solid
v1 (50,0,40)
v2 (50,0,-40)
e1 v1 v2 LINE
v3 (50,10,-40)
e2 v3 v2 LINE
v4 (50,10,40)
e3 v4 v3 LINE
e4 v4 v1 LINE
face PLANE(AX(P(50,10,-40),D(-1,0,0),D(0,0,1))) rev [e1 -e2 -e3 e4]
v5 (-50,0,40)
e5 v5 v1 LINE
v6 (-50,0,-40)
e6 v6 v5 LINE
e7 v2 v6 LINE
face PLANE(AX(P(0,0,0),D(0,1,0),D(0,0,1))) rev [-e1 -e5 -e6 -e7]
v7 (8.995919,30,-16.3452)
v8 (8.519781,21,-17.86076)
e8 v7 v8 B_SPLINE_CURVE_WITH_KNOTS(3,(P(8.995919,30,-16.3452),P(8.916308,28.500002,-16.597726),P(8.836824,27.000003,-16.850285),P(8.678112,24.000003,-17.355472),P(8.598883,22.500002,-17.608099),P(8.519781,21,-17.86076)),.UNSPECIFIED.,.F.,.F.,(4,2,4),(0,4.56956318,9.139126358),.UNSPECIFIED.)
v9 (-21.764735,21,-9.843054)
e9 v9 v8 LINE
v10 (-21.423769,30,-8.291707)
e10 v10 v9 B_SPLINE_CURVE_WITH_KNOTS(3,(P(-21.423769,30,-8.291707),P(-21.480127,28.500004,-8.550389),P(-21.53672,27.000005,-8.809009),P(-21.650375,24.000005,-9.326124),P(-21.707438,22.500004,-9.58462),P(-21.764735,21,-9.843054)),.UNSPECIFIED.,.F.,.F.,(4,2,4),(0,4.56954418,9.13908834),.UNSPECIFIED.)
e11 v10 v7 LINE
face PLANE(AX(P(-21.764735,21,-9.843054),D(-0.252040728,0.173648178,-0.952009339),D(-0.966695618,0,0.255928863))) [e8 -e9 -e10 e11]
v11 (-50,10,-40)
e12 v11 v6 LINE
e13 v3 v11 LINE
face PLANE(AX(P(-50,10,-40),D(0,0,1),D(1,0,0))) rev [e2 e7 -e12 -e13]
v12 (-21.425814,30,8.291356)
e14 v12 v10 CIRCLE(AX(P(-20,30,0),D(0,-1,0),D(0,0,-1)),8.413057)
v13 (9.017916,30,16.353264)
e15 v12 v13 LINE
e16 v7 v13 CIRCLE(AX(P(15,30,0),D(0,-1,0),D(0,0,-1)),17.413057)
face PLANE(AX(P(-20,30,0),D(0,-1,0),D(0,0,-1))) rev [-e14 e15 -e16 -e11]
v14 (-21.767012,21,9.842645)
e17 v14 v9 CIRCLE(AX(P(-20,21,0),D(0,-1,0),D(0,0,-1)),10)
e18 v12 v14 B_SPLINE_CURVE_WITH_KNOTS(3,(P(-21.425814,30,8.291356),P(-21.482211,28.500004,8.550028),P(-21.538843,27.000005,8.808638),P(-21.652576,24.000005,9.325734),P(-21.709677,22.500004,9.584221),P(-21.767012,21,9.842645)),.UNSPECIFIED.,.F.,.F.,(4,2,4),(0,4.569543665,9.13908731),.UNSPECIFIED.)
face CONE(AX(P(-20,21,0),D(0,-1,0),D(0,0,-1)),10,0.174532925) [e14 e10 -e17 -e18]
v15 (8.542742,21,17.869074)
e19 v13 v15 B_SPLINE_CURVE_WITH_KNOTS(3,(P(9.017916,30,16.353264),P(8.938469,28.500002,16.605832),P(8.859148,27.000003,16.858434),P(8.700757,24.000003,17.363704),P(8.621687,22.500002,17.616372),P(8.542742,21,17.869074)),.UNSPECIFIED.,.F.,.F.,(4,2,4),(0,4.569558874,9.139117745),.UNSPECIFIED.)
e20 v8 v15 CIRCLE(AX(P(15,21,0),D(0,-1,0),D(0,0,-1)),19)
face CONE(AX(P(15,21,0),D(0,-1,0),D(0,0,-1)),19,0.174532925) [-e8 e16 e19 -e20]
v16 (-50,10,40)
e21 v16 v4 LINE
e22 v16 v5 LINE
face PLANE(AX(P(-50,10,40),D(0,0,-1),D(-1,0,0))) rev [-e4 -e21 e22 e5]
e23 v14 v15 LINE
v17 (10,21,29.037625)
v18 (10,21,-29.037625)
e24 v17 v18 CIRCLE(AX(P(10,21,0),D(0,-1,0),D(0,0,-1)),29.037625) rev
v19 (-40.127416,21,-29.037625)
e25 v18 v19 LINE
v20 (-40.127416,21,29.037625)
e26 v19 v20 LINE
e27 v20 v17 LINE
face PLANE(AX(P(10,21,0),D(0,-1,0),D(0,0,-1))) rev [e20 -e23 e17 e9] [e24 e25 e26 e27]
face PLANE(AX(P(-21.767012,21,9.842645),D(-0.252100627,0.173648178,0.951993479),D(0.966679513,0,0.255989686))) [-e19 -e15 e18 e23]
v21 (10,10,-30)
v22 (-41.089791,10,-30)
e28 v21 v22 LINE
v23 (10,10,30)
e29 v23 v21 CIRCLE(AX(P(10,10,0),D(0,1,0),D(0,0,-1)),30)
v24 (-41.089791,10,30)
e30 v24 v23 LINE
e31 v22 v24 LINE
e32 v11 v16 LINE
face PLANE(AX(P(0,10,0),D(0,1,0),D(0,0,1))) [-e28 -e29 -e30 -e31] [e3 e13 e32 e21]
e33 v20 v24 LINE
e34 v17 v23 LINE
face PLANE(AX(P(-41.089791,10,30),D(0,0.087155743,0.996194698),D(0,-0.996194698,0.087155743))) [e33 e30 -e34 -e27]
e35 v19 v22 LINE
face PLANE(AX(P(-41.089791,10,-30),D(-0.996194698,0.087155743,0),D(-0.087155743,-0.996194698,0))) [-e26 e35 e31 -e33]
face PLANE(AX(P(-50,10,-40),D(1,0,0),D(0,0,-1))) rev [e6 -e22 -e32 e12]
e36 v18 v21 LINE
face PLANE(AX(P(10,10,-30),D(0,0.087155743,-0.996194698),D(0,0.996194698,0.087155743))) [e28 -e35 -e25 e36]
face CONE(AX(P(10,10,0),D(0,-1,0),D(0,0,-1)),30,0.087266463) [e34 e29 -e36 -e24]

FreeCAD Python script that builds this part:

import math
import FreeCAD as App
import Part
import Sketcher
from FreeCAD import Vector
Q = App.Units.Quantity

doc = App.newDocument("Part")
body = doc.addObject("PartDesign::Body", "Body")

sketch1 = body.newObject("Sketcher::SketchObject", "Sketch")
sketch1.AttachmentSupport = (doc.getObject("XZ_Plane"), [""])
sketch1.MapMode = "FlatFace"
sketch1.addGeometry(Part.LineSegment(Vector(-50, -40, 0), Vector(-50, 40, 0)), False)
sketch1.addGeometry(Part.LineSegment(Vector(-50, 40, 0), Vector(50, 40, 0)), False)
sketch1.addGeometry(Part.LineSegment(Vector(50, 40, 0), Vector(50, -40, 0)), False)
sketch1.addGeometry(Part.LineSegment(Vector(50, -40, 0), Vector(-50, -40, 0)), False)
sketch1.addConstraint(Sketcher.Constraint("Coincident", 0, 2, 1, 1))
sketch1.addConstraint(Sketcher.Constraint("Coincident", 1, 2, 2, 1))
sketch1.addConstraint(Sketcher.Constraint("Coincident", 2, 2, 3, 1))
sketch1.addConstraint(Sketcher.Constraint("Coincident", 3, 2, 0, 1))
sketch1.addConstraint(Sketcher.Constraint("Vertical", 0))
sketch1.addConstraint(Sketcher.Constraint("Horizontal", 1))
sketch1.addConstraint(Sketcher.Constraint("Vertical", 2))
sketch1.addConstraint(Sketcher.Constraint("Horizontal", 3))
sketch1.addConstraint(Sketcher.Constraint("Symmetric", 0, 2, 2, 2, -1, 1))
sketch1.addConstraint(Sketcher.Constraint("DistanceX", 1, 1, 1, 2, Q("100 mm")))
sketch1.addConstraint(Sketcher.Constraint("DistanceY", 0, 1, 0, 2, Q("80 mm")))
pad1 = body.newObject("PartDesign::Pad", "Pad")
pad1.Profile = sketch1
pad1.Length = 10
pad1.Reversed = True

sketch2 = body.newObject("Sketcher::SketchObject", "Sketch001")
sketch2.AttachmentSupport = (doc.getObject("XZ_Plane"), [""])
sketch2.MapMode = "FlatFace"
sketch2.AttachmentOffset = App.Placement(Vector(0, 0, -10), App.Rotation())
sketch2.addGeometry(Part.LineSegment(Vector(10, -30, 0), Vector(-41, -30, 0)), False)
sketch2.addGeometry(Part.LineSegment(Vector(-41, -30, 0), Vector(-41, 30, 0)), False)
sketch2.addGeometry(Part.LineSegment(Vector(-41, 30, 0), Vector(10, 30, 0)), False)
sketch2.addGeometry(Part.ArcOfCircle(Part.Circle(Vector(10, 0, 0), Vector(0, 0, 1), 30), math.radians(-90), math.radians(90)), False)
sketch2.addConstraint(Sketcher.Constraint("Coincident", 0, 2, 1, 1))
sketch2.addConstraint(Sketcher.Constraint("Coincident", 1, 2, 2, 1))
sketch2.addConstraint(Sketcher.Constraint("Tangent", 2, 2, 3, 2))
sketch2.addConstraint(Sketcher.Constraint("Tangent", 3, 1, 0, 1))
sketch2.addConstraint(Sketcher.Constraint("Horizontal", 0))
sketch2.addConstraint(Sketcher.Constraint("Vertical", 1))
sketch2.addConstraint(Sketcher.Constraint("Horizontal", 2))
sketch2.addConstraint(Sketcher.Constraint("PointOnObject", 3, 3, -1))
sketch2.addConstraint(Sketcher.Constraint("Radius", 3, Q("30 mm")))
sketch2.addConstraint(Sketcher.Constraint("DistanceX", -1, 1, 3, 3, Q("10 mm")))
sketch2.addConstraint(Sketcher.Constraint("DistanceX", 0, 2, 0, 1, Q("51.089791 mm")))
pad2 = body.newObject("PartDesign::Pad", "Pad001")
pad2.Profile = sketch2
pad2.Length = 11
pad2.Reversed = True
pad2.TaperAngle = -5

sketch3 = body.newObject("Sketcher::SketchObject", "Sketch002")
sketch3.AttachmentSupport = (doc.getObject("XZ_Plane"), [""])
sketch3.MapMode = "FlatFace"
sketch3.AttachmentOffset = App.Placement(Vector(0, 0, -21), App.Rotation())
sketch3.addGeometry(Part.ArcOfCircle(Part.Circle(Vector(-20, 0, 0), Vector(0, 0, 1), 10), math.radians(100), math.radians(260)), False)
sketch3.addGeometry(Part.LineSegment(Vector(-22, 10, 0), Vector(9, 18, 0)), False)
sketch3.addGeometry(Part.ArcOfCircle(Part.Circle(Vector(15, 0, 0), Vector(0, 0, 1), 19), math.radians(-110), math.radians(110)), False)
sketch3.addGeometry(Part.LineSegment(Vector(9, -18, 0), Vector(-22, -10, 0)), False)
sketch3.addConstraint(Sketcher.Constraint("Coincident", 0, 1, 1, 1))
sketch3.addConstraint(Sketcher.Constraint("Coincident", 1, 2, 2, 2))
sketch3.addConstraint(Sketcher.Constraint("Coincident", 2, 1, 3, 1))
sketch3.addConstraint(Sketcher.Constraint("Coincident", 3, 2, 0, 2))
sketch3.addConstraint(Sketcher.Constraint("PointOnObject", 0, 3, -1))
sketch3.addConstraint(Sketcher.Constraint("PointOnObject", 2, 3, -1))
sketch3.addConstraint(Sketcher.Constraint("Radius", 0, Q("10 mm")))
sketch3.addConstraint(Sketcher.Constraint("Radius", 2, Q("19 mm")))
sketch3.addConstraint(Sketcher.Constraint("DistanceX", 0, 3, -1, 1, Q("20 mm")))
sketch3.addConstraint(Sketcher.Constraint("DistanceX", -1, 1, 2, 3, Q("15 mm")))
sketch3.addConstraint(Sketcher.Constraint("Distance", 1, Q("31.354501 mm")))
sketch3.addConstraint(Sketcher.Constraint("DistanceY", 3, 2, 0, 1, Q("19.685699 mm")))
sketch3.addConstraint(Sketcher.Constraint("Distance", 3, Q("31.327872 mm")))
sketch3.addConstraint(Sketcher.Constraint("DistanceX", -1, 1, 1, 2, Q("8.542742 mm")))
pad3 = body.newObject("PartDesign::Pad", "Pad002")
pad3.Profile = sketch3
pad3.Length = 9
pad3.Reversed = True
pad3.TaperAngle = -10

doc.recompute()
